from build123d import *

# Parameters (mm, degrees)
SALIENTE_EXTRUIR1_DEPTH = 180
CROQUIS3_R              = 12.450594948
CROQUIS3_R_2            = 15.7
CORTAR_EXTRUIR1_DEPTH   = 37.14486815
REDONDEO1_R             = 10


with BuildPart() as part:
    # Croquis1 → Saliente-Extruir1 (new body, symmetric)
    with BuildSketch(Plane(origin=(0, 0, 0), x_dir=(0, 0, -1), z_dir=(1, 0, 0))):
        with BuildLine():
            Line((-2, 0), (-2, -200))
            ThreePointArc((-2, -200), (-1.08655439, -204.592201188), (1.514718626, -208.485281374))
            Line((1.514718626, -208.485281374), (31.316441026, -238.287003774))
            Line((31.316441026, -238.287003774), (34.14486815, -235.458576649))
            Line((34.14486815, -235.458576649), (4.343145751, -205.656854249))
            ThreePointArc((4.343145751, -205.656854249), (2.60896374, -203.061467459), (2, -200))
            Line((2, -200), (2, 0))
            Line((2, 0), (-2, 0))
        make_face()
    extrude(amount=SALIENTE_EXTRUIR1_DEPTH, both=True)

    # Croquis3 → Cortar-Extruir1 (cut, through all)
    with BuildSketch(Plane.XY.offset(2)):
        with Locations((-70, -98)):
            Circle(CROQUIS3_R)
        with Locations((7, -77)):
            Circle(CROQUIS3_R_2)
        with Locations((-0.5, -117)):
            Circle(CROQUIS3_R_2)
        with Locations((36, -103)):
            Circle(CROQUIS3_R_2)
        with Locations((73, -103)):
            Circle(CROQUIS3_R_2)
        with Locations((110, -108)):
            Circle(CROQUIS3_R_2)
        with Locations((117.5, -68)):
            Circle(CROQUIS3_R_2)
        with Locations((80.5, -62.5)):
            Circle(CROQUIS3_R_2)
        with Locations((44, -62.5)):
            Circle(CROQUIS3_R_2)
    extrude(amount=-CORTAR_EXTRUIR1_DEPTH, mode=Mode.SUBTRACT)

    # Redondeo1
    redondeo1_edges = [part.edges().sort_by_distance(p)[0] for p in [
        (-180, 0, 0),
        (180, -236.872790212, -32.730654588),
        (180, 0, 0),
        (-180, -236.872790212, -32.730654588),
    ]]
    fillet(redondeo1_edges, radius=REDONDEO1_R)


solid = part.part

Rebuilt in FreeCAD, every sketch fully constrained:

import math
import FreeCAD as App
import Part
import Sketcher
Q = App.Units.Quantity


def edges_at(feature, points):
    """Names of the edges that pass closest to the given points."""
    edges = feature.Shape.Edges
    near = lambda p: min(range(len(edges)), key=lambda i: edges[i].distToShape(Part.Vertex(*p))[0])
    return sorted({f"Edge{near(p) + 1}" for p in points})

doc = App.newDocument("Part")
body = doc.addObject("PartDesign::Body", "Body")

# Sketch on YZ plane
sketch1 = body.newObject("Sketcher::SketchObject", "Sketch")
sketch1.AttachmentSupport = (doc.getObject("YZ_Plane"), [""])
sketch1.MapMode = "FlatFace"
sketch1.addGeometry([
    Part.LineSegment(App.Vector(0, 2, 0), App.Vector(-200, 2, 0)),  # 0
    Part.ArcOfCircle(Part.Circle(App.Vector(-200, -10, 0), App.Vector(0, 0, 1), 12), math.radians(90), math.radians(135)),  # 1
    Part.LineSegment(App.Vector(-208.5, -1.5, 0), App.Vector(-238.3, -31.3, 0)),  # 2
    Part.LineSegment(App.Vector(-238.3, -31.3, 0), App.Vector(-235.5, -34.1, 0)),  # 3
    Part.LineSegment(App.Vector(-235.5, -34.1, 0), App.Vector(-205.7, -4.3, 0)),  # 4
    Part.ArcOfCircle(Part.Circle(App.Vector(-200, -10, 0), App.Vector(0, 0, 1), 8), math.radians(90), math.radians(135)),  # 5
    Part.LineSegment(App.Vector(-200, -2, 0), App.Vector(0, -2, 0)),  # 6
    Part.LineSegment(App.Vector(0, -2, 0), App.Vector(0, 2, 0)),  # 7
], False)
sketch1.addConstraint([
    Sketcher.Constraint("Tangent", 0, 2, 1, 1),
    Sketcher.Constraint("Tangent", 1, 2, 2, 1),
    Sketcher.Constraint("Coincident", 2, 2, 3, 1),
    Sketcher.Constraint("Coincident", 3, 2, 4, 1),
    Sketcher.Constraint("Tangent", 4, 2, 5, 2),
    Sketcher.Constraint("Tangent", 5, 1, 6, 1),
    Sketcher.Constraint("Coincident", 6, 2, 7, 1),
    Sketcher.Constraint("Coincident", 7, 2, 0, 1),
    Sketcher.Constraint("Horizontal", 0),
    Sketcher.Constraint("Horizontal", 6),
    Sketcher.Constraint("Vertical", 7),
    Sketcher.Constraint("Coincident", 5, 3, 1, 3),
    Sketcher.Constraint("Symmetric", 6, 2, 7, 2, -1, 1),
    Sketcher.Constraint("Perpendicular", 2, 3),
    Sketcher.Constraint("Perpendicular", 3, 4),
    Sketcher.Constraint("Radius", 1, Q("12 mm")),
    Sketcher.Constraint("Radius", 5, Q("8 mm")),
    Sketcher.Constraint("DistanceX", 0, 2, 0, 1, Q("200 mm")),
    Sketcher.Constraint("Angle", 2, Q("-135 deg")),
    Sketcher.Constraint("Distance", 2, Q("42.146 mm")),
])
pad1 = body.newObject("PartDesign::Pad", "Pad")
pad1.Profile = sketch1
pad1.Length = 360
pad1.Midplane = True

# Sketch on XY plane
sketch2 = body.newObject("Sketcher::SketchObject", "Sketch001")
sketch2.AttachmentSupport = (doc.getObject("XY_Plane"), [""])
sketch2.MapMode = "FlatFace"
sketch2.AttachmentOffset = App.Placement(App.Vector(0, 0, 2), App.Rotation())
sketch2.addGeometry([
    Part.Circle(App.Vector(-70, -98, 0), App.Vector(0, 0, 1), 12),  # 0
    Part.Circle(App.Vector(7, -77, 0), App.Vector(0, 0, 1), 16),  # 1
    Part.Circle(App.Vector(0, -117, 0), App.Vector(0, 0, 1), 16),  # 2
    Part.Circle(App.Vector(36, -103, 0), App.Vector(0, 0, 1), 16),  # 3
    Part.Circle(App.Vector(73, -103, 0), App.Vector(0, 0, 1), 16),  # 4
    Part.Circle(App.Vector(110, -108, 0), App.Vector(0, 0, 1), 16),  # 5
    Part.Circle(App.Vector(118, -68, 0), App.Vector(0, 0, 1), 16),  # 6
    Part.Circle(App.Vector(80, -62, 0), App.Vector(0, 0, 1), 16),  # 7
    Part.Circle(App.Vector(44, -62, 0), App.Vector(0, 0, 1), 16),  # 8
], False)
sketch2.addConstraint([
    Sketcher.Constraint("Equal", 1, 2),
    Sketcher.Constraint("Equal", 2, 3),
    Sketcher.Constraint("Equal", 3, 4),
    Sketcher.Constraint("Equal", 4, 5),
    Sketcher.Constraint("Equal", 5, 6),
    Sketcher.Constraint("Equal", 6, 7),
    Sketcher.Constraint("Equal", 7, 8),
    Sketcher.Constraint("Horizontal", 3, 3, 4, 3),
    Sketcher.Constraint("Horizontal", 7, 3, 8, 3),
    Sketcher.Constraint("Diameter", 1, Q("31.4 mm")),
    Sketcher.Constraint("DistanceX", 0, 3, -1, 1, Q("70 mm")),
    Sketcher.Constraint("DistanceY", 0, 3, -1, 1, Q("98 mm")),
    Sketcher.Constraint("DistanceX", -1, 1, 1, 3, Q("7 mm")),
    Sketcher.Constraint("DistanceY", 1, 3, -1, 1, Q("77 mm")),
    Sketcher.Constraint("DistanceY", 2, 3, -1, 1, Q("117 mm")),
    Sketcher.Constraint("DistanceX", -1, 1, 3, 3, Q("36 mm")),
    Sketcher.Constraint("DistanceY", 3, 3, -1, 1, Q("103 mm")),
    Sketcher.Constraint("DistanceX", -1, 1, 4, 3, Q("73 mm")),
    Sketcher.Constraint("DistanceX", -1, 1, 5, 3, Q("110 mm")),
    Sketcher.Constraint("DistanceY", 5, 3, -1, 1, Q("108 mm")),
    Sketcher.Constraint("DistanceY", 6, 3, -1, 1, Q("68 mm")),
    Sketcher.Constraint("DistanceX", -1, 1, 8, 3, Q("44 mm")),
    Sketcher.Constraint("DistanceX", 2, 3, 6, 3, Q("118 mm")),
    Sketcher.Constraint("DistanceX", 7, 3, 6, 3, Q("37 mm")),
    Sketcher.Constraint("DistanceX", 2, 3, -1, 1, Q("0.5 mm")),
    Sketcher.Constraint("DistanceY", 7, 3, -1, 1, Q("62.5 mm")),
    Sketcher.Constraint("Diameter", 0, Q("24.90119 mm")),
])
pocket1 = body.newObject("PartDesign::Pocket", "Pocket")
pocket1.Profile = sketch2
pocket1.Type = "ThroughAll"
doc.recompute()

fillet = body.newObject("PartDesign::Fillet", "Fillet")
fillet.Base = (pocket1, edges_at(pocket1, [
    (-180, 0, 0),
    (180, -236.873, -32.731),
    (180, 0, 0),
    (-180, -236.873, -32.731),
]))
fillet.Radius = 10

doc.recompute()
